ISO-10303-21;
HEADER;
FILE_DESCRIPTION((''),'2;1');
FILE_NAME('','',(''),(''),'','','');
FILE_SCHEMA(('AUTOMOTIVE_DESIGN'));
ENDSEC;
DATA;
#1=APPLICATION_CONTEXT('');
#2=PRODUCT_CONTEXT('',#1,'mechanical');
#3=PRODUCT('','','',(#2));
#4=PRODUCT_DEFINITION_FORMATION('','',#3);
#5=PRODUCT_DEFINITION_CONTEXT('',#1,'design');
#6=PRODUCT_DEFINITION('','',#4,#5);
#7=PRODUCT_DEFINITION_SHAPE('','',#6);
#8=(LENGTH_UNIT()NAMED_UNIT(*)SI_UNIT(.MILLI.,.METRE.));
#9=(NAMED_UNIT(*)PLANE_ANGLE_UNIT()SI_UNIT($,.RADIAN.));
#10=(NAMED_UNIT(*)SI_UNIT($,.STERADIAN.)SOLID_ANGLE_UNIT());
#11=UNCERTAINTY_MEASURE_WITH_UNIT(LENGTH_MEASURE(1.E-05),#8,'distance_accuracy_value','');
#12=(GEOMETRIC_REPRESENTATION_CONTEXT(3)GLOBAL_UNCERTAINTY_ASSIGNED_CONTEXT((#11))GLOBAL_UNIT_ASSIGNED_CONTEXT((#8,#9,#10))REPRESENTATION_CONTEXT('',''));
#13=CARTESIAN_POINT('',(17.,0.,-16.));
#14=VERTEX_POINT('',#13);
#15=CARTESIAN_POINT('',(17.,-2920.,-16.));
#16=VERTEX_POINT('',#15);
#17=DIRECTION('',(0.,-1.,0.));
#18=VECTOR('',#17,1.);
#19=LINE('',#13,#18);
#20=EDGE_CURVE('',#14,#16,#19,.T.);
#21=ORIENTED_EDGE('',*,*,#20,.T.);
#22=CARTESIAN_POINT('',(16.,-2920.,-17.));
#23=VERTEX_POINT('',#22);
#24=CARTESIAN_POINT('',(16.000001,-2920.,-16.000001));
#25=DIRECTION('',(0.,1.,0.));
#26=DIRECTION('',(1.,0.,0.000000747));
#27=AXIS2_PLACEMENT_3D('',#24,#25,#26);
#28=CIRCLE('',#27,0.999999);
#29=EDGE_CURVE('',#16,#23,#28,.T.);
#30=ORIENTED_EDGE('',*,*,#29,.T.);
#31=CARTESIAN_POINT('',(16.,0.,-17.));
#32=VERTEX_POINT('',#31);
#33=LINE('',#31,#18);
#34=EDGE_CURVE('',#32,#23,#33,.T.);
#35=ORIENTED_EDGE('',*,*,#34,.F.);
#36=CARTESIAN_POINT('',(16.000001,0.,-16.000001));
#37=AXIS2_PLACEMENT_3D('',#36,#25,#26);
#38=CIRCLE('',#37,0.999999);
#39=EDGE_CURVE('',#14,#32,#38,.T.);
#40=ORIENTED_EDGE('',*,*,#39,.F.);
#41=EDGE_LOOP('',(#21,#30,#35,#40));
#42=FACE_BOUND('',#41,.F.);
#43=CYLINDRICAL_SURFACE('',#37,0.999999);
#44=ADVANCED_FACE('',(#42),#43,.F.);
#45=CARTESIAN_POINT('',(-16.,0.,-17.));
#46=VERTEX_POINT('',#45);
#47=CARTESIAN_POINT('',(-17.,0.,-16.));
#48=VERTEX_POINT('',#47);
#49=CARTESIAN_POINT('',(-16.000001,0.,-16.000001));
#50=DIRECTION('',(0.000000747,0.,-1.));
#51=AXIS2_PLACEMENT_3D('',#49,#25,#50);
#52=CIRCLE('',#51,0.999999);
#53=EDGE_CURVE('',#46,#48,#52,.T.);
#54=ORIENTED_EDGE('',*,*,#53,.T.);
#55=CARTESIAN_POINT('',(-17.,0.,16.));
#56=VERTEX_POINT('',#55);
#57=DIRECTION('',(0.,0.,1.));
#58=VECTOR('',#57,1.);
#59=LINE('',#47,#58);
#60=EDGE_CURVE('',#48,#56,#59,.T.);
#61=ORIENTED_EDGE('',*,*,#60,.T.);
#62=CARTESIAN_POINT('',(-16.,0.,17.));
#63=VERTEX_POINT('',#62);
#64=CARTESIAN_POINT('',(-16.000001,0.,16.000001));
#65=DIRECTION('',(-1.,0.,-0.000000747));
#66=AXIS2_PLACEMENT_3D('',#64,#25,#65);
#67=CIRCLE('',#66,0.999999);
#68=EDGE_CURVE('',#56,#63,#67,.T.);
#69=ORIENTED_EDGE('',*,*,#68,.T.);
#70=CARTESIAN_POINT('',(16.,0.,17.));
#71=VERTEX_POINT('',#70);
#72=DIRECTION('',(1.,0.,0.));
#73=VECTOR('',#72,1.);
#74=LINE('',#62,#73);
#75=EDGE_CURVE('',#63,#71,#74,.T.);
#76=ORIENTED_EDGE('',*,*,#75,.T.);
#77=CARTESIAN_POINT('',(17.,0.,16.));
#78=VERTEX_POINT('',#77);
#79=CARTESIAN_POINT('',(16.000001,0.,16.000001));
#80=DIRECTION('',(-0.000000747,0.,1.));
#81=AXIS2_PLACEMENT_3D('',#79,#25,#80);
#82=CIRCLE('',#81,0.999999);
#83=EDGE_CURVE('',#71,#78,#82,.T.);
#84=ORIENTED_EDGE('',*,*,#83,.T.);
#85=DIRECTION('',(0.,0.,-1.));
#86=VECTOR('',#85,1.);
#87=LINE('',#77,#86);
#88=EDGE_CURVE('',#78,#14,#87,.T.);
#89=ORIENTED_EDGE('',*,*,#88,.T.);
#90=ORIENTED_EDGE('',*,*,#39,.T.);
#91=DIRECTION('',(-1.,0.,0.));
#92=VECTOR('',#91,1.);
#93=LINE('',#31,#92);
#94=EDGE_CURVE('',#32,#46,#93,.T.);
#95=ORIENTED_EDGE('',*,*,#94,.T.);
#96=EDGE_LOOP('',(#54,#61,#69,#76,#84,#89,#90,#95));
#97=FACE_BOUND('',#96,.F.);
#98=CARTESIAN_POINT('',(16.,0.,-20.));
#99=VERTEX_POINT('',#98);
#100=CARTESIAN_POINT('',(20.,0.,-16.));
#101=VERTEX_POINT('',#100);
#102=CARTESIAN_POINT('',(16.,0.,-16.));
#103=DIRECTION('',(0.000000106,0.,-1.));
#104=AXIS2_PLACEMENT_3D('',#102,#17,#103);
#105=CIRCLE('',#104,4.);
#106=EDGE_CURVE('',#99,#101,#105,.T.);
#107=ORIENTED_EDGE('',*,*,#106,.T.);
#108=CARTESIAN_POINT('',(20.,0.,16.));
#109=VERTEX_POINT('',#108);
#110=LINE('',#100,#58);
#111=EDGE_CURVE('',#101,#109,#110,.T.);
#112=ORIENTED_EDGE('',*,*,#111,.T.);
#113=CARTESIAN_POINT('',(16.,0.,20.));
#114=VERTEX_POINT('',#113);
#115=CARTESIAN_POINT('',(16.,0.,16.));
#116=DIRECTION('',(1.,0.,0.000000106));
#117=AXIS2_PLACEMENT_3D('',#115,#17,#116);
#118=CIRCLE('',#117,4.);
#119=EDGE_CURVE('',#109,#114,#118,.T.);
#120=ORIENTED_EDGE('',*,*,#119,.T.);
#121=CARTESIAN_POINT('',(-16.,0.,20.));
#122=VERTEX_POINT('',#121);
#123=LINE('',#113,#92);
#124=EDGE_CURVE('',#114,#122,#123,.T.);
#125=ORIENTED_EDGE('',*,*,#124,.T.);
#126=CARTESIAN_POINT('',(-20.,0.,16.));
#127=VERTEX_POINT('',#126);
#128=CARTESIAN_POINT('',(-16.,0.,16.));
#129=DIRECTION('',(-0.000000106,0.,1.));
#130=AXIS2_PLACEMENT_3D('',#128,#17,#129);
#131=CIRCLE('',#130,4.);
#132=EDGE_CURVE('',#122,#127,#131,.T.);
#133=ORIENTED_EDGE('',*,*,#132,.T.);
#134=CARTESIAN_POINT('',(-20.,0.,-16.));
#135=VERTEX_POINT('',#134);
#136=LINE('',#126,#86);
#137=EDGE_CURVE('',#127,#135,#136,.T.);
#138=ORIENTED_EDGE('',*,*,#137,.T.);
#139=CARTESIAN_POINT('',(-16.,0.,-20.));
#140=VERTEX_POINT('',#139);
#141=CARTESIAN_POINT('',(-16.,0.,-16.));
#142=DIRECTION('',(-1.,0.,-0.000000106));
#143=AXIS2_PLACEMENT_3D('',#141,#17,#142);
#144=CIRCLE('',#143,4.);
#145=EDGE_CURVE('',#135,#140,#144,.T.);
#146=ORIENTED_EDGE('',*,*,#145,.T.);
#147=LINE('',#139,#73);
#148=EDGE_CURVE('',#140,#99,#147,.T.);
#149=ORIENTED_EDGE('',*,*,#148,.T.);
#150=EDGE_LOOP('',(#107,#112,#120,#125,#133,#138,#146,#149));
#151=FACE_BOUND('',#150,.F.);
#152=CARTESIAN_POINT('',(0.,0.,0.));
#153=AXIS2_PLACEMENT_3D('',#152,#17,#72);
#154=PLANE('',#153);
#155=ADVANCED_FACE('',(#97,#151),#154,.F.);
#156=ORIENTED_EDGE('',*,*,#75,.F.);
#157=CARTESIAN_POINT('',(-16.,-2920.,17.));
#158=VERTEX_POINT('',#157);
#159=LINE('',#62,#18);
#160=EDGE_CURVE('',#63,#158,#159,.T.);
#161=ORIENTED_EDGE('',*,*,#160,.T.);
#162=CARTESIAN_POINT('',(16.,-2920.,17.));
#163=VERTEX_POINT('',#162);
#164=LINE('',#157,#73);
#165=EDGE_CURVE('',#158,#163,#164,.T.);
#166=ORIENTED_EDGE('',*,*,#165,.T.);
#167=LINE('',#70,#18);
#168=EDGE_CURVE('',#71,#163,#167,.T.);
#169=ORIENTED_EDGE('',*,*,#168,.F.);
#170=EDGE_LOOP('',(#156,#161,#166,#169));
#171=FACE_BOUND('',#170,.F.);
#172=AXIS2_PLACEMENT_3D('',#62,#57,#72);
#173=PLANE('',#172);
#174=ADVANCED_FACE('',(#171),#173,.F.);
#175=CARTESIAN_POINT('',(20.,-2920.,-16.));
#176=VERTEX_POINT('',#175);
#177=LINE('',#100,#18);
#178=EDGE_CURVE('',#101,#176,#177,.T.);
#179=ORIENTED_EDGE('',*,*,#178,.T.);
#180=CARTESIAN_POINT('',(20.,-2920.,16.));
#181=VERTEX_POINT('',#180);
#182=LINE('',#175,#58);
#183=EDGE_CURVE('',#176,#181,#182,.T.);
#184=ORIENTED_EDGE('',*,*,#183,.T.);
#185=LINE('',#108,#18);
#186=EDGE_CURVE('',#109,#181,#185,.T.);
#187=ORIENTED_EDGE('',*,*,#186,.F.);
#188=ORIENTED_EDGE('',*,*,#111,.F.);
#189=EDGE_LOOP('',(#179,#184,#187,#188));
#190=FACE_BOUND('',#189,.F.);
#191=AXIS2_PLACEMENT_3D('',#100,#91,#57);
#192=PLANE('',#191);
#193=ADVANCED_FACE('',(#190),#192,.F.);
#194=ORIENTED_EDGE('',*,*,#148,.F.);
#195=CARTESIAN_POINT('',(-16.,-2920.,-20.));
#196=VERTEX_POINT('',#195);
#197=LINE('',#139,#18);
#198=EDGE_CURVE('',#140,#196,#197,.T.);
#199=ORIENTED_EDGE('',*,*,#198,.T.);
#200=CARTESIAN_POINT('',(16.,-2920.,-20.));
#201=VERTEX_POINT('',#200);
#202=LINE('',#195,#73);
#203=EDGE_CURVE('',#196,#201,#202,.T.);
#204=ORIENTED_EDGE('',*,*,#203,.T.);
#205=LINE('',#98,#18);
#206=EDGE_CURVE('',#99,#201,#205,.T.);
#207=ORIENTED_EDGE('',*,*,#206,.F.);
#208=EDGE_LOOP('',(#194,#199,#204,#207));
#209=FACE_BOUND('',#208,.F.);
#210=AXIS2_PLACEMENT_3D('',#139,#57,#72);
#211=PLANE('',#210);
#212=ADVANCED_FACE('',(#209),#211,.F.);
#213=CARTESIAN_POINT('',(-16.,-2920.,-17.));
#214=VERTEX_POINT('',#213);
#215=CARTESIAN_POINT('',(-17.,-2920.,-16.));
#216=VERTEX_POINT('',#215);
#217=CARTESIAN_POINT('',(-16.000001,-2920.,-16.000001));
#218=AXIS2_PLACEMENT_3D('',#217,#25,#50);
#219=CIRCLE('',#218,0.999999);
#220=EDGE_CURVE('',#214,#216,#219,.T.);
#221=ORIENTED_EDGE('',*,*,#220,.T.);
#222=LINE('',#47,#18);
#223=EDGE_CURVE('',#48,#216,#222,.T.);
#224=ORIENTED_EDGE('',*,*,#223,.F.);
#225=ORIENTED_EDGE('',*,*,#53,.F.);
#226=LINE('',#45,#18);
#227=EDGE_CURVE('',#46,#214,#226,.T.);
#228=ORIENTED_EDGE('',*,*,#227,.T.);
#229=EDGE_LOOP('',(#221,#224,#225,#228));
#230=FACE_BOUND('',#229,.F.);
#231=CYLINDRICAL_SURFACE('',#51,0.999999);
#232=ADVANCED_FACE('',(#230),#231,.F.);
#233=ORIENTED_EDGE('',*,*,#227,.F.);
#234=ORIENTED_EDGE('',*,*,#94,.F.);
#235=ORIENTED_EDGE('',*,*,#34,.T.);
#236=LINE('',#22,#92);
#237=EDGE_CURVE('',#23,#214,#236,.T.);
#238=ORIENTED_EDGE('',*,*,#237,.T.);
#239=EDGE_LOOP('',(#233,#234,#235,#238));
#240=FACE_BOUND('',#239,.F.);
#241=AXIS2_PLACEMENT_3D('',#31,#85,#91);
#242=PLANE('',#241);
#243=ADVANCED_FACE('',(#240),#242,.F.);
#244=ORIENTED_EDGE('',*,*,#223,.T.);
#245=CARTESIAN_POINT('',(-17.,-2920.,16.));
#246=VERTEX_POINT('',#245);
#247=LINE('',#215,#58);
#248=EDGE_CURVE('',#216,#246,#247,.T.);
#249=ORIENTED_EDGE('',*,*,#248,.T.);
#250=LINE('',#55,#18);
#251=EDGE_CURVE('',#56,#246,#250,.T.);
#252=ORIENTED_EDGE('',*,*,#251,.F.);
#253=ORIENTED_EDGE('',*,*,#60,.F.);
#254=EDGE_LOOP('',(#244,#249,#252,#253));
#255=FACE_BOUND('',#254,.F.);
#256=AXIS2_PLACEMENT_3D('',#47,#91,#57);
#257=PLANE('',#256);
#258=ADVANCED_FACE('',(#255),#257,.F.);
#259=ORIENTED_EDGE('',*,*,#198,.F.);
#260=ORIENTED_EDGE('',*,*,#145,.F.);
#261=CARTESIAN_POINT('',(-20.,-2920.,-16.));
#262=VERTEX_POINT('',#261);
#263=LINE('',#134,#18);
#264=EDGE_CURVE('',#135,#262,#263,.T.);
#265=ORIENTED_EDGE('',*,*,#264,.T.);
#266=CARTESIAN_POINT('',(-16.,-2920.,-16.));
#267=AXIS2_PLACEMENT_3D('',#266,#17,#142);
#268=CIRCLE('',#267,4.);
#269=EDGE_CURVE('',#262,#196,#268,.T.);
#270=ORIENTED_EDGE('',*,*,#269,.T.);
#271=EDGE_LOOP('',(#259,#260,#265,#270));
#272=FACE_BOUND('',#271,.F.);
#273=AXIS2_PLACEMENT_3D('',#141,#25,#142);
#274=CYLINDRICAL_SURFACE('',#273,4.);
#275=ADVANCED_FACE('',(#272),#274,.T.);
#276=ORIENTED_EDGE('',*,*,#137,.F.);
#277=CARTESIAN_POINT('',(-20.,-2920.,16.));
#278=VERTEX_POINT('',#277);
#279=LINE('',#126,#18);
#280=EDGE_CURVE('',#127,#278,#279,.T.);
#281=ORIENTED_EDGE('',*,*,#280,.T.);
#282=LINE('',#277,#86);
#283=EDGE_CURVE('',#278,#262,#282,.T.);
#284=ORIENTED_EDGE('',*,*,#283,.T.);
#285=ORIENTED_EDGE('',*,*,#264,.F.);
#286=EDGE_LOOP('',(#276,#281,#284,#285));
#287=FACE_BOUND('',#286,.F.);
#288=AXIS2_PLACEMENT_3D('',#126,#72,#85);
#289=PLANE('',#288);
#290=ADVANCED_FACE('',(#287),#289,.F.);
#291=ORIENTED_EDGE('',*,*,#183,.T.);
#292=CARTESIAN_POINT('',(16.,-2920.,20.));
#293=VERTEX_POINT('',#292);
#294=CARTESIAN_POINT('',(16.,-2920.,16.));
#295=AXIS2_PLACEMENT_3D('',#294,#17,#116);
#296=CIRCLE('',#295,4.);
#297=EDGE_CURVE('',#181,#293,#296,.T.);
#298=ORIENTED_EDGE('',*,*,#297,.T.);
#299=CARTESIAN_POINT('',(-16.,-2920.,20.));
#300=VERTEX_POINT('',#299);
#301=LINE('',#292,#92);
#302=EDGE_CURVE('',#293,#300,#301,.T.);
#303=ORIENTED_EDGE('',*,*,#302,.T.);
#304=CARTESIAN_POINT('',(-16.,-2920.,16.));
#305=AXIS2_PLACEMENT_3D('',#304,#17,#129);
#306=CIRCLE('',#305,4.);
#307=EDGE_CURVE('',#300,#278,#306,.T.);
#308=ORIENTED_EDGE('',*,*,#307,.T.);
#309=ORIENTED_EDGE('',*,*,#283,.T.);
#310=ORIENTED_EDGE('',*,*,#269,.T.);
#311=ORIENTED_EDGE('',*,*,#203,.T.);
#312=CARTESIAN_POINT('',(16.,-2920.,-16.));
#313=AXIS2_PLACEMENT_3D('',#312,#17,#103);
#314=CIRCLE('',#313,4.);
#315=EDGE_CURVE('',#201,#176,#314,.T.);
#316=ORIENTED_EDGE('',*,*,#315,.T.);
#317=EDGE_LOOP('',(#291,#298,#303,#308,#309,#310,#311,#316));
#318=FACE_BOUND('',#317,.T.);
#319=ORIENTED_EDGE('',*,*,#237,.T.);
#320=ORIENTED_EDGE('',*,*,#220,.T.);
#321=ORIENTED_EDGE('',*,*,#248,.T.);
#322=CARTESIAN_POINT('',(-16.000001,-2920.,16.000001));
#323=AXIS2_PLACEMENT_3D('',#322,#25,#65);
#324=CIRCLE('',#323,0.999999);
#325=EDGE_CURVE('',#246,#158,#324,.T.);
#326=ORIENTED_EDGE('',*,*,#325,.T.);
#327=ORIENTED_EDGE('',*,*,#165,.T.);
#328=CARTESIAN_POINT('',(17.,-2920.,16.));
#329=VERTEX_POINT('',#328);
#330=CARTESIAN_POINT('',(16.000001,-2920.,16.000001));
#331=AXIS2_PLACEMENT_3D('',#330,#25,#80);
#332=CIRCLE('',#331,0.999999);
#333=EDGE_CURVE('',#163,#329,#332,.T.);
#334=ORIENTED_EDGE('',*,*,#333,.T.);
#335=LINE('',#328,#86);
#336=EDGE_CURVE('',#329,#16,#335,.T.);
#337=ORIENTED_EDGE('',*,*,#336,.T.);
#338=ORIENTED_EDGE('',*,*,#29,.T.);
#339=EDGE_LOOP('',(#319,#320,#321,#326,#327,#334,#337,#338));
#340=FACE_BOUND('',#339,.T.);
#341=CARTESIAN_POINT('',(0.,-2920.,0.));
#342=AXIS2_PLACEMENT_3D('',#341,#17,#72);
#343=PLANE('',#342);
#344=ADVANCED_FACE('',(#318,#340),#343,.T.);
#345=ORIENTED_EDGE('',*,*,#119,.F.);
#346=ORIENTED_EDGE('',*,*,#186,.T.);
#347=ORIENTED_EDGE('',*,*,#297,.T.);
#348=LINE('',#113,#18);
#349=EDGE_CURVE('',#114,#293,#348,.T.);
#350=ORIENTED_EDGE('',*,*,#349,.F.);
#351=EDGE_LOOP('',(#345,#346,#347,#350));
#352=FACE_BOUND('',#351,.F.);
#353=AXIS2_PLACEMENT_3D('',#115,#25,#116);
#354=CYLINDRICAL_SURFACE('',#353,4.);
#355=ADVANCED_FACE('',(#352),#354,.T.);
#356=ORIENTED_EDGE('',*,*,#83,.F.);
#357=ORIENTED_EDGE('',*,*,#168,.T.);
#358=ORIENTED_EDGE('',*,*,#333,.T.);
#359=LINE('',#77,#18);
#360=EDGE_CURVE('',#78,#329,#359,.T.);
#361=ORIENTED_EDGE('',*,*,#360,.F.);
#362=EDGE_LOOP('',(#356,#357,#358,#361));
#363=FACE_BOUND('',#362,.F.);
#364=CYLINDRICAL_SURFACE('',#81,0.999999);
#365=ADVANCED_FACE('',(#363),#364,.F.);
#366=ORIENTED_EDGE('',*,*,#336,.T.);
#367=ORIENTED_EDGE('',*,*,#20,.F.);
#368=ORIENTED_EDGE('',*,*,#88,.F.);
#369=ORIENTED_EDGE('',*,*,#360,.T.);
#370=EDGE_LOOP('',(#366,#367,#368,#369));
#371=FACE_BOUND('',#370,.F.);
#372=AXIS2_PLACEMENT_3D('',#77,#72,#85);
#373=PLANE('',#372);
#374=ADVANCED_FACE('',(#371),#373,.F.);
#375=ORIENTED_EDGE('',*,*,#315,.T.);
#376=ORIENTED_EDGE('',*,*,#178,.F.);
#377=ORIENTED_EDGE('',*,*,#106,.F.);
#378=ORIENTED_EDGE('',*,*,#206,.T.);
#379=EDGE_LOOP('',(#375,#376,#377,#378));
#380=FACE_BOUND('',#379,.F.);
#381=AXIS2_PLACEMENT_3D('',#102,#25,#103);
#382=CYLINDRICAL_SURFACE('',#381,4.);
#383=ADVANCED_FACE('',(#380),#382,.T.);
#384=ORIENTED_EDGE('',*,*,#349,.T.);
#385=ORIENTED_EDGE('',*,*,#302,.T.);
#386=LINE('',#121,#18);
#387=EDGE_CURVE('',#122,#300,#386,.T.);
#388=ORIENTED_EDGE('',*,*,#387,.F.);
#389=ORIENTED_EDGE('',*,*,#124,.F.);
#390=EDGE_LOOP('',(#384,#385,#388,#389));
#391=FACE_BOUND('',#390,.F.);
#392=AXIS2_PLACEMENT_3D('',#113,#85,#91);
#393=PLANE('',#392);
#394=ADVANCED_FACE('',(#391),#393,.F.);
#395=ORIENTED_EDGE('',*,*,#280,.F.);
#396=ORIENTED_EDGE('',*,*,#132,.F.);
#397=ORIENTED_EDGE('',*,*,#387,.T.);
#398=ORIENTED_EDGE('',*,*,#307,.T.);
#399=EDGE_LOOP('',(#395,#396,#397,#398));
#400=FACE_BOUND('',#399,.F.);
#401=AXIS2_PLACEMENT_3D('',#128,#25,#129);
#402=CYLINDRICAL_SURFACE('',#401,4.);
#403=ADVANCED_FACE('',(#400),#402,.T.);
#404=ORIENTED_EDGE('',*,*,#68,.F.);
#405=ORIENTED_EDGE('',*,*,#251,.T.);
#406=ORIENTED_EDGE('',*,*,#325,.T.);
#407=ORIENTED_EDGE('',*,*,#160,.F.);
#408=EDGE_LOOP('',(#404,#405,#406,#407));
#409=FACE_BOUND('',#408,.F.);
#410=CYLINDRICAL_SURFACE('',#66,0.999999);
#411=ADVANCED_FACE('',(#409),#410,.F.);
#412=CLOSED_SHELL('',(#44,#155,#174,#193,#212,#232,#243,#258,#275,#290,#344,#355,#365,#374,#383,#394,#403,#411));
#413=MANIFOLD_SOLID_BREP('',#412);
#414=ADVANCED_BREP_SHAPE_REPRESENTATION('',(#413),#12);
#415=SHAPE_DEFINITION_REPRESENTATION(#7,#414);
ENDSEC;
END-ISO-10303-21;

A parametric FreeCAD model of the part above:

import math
import FreeCAD as App
import Part
import Sketcher
from FreeCAD import Vector

doc = App.newDocument("Part")
body = doc.addObject("PartDesign::Body", "Body")

# Sketch on XZ plane
sketch1 = body.newObject("Sketcher::SketchObject", "Sketch")
sketch1.AttachmentSupport = (doc.getObject("XZ_Plane"), [""])
sketch1.MapMode = "FlatFace"
sketch1.addGeometry([
    Part.ArcOfCircle(Part.Circle(Vector(16, 16, 0), Vector(0, 0, 1), 4), math.radians(0), math.radians(90)),  # 0
    Part.LineSegment(Vector(16, 20, 0), Vector(-16, 20, 0)),  # 1
    Part.ArcOfCircle(Part.Circle(Vector(-16, 16, 0), Vector(0, 0, 1), 4), math.radians(90), math.radians(180)),  # 2
    Part.LineSegment(Vector(-20, 16, 0), Vector(-20, -16, 0)),  # 3
    Part.ArcOfCircle(Part.Circle(Vector(-16, -16, 0), Vector(0, 0, 1), 4), math.radians(-180), math.radians(-90)),  # 4
    Part.LineSegment(Vector(-16, -20, 0), Vector(16, -20, 0)),  # 5
    Part.ArcOfCircle(Part.Circle(Vector(16, -16, 0), Vector(0, 0, 1), 4), math.radians(-90), math.radians(0)),  # 6
    Part.LineSegment(Vector(20, -16, 0), Vector(20, 16, 0)),  # 7
    Part.ArcOfCircle(Part.Circle(Vector(-16, 16, 0), Vector(0, 0, 1), 1), math.radians(90), math.radians(180)),  # 8
    Part.LineSegment(Vector(-16, 17, 0), Vector(16, 17, 0)),  # 9
    Part.ArcOfCircle(Part.Circle(Vector(16, 16, 0), Vector(0, 0, 1), 1), math.radians(0), math.radians(90)),  # 10
    Part.LineSegment(Vector(17, 16, 0), Vector(17, -16, 0)),  # 11
    Part.ArcOfCircle(Part.Circle(Vector(16, -16, 0), Vector(0, 0, 1), 1), math.radians(-90), math.radians(0)),  # 12
    Part.LineSegment(Vector(16, -17, 0), Vector(-16, -17, 0)),  # 13
    Part.ArcOfCircle(Part.Circle(Vector(-16, -16, 0), Vector(0, 0, 1), 1), math.radians(180), math.radians(270)),  # 14
    Part.LineSegment(Vector(-17, -16, 0), Vector(-17, 16, 0)),  # 15
], False)
sketch1.addConstraint([
    Sketcher.Constraint("Tangent", 0, 2, 1, 1),
    Sketcher.Constraint("Tangent", 1, 2, 2, 1),
    Sketcher.Constraint("Tangent", 2, 2, 3, 1),
    Sketcher.Constraint("Tangent", 3, 2, 4, 1),
    Sketcher.Constraint("Tangent", 4, 2, 5, 1),
    Sketcher.Constraint("Tangent", 5, 2, 6, 1),
    Sketcher.Constraint("Tangent", 6, 2, 7, 1),
    Sketcher.Constraint("Tangent", 7, 2, 0, 1),
    Sketcher.Constraint("Tangent", 8, 1, 9, 1),
    Sketcher.Constraint("Tangent", 9, 2, 10, 2),
    Sketcher.Constraint("Tangent", 10, 1, 11, 1),
    Sketcher.Constraint("Tangent", 11, 2, 12, 2),
    Sketcher.Constraint("Tangent", 12, 1, 13, 1),
    Sketcher.Constraint("Tangent", 13, 2, 14, 2),
    Sketcher.Constraint("Tangent", 14, 1, 15, 1),
    Sketcher.Constraint("Tangent", 15, 2, 8, 2),
    Sketcher.Constraint("Horizontal", 1),
    Sketcher.Constraint("Vertical", 3),
    Sketcher.Constraint("Horizontal", 5),
    Sketcher.Constraint("Vertical", 7),
    Sketcher.Constraint("Horizontal", 9),
    Sketcher.Constraint("Vertical", 11),
    Sketcher.Constraint("Horizontal", 13),
    Sketcher.Constraint("Vertical", 15),
    Sketcher.Constraint("Coincident", 8, 3, 2, 3),
    Sketcher.Constraint("Coincident", 10, 3, 0, 3),
    Sketcher.Constraint("Coincident", 12, 3, 6, 3),
    Sketcher.Constraint("Equal", 0, 2),
    Sketcher.Constraint("Equal", 2, 4),
    Sketcher.Constraint("Equal", 4, 6),
    Sketcher.Constraint("Equal", 12, 14),
    Sketcher.Constraint("Symmetric", 0, 3, 4, 3, -1, 1),
    Sketcher.Constraint("Equal", 13, 3),
    Sketcher.Constraint("Radius", 0, 4.0),
    Sketcher.Constraint("Radius", 8, 0.999999),
    Sketcher.Constraint("DistanceX", 1, 2, 1, 1, 32.0),
])
pad1 = body.newObject("PartDesign::Pad", "Pad")
pad1.Profile = sketch1
pad1.Length = 2920

doc.recompute()
